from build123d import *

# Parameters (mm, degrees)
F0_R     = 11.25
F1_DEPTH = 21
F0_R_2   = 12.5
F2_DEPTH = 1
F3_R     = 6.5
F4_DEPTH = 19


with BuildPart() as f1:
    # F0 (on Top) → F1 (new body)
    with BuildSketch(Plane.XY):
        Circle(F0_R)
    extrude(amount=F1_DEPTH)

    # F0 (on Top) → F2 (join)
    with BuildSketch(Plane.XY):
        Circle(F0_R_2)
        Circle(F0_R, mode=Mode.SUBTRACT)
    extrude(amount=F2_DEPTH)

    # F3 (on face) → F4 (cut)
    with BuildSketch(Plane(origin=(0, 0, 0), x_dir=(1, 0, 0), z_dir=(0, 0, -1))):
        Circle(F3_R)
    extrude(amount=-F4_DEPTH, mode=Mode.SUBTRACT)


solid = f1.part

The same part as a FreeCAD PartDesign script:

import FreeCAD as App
import Part
import Sketcher
from FreeCAD import Vector

doc = App.newDocument("Part")
body = doc.addObject("PartDesign::Body", "Body")

# Sketch on XY plane
sketch1 = body.newObject("Sketcher::SketchObject", "Sketch")
sketch1.AttachmentSupport = (doc.getObject("XY_Plane"), [""])
sketch1.MapMode = "FlatFace"
sketch1.addGeometry(Part.Circle(Vector(0, 0, 0), Vector(0, 0, 1), 11), False)
sketch1.addConstraint(Sketcher.Constraint("Coincident", 0, 3, -1, 1))
sketch1.addConstraint(Sketcher.Constraint("Diameter", 0, 22.5))
pad1 = body.newObject("PartDesign::Pad", "Pad")
pad1.Profile = sketch1
pad1.Length = 21

# Sketch on XY plane
sketch2 = body.newObject("Sketcher::SketchObject", "Sketch001")
sketch2.AttachmentSupport = (doc.getObject("XY_Plane"), [""])
sketch2.MapMode = "FlatFace"
sketch2.addGeometry(Part.Circle(Vector(0, 0, 0), Vector(0, 0, 1), 12), False)
sketch2.addGeometry(Part.Circle(Vector(0, 0, 0), Vector(0, 0, 1), 11), False)
sketch2.addConstraint(Sketcher.Constraint("Coincident", 0, 3, -1, 1))
sketch2.addConstraint(Sketcher.Constraint("Coincident", 1, 3, -1, 1))
sketch2.addConstraint(Sketcher.Constraint("Diameter", 0, 25.0))
sketch2.addConstraint(Sketcher.Constraint("Diameter", 1, 22.5))
pad2 = body.newObject("PartDesign::Pad", "Pad001")
pad2.Profile = sketch2
pad2.Length = 1

# Sketch on XY plane
sketch3 = body.newObject("Sketcher::SketchObject", "Sketch002")
sketch3.AttachmentSupport = (doc.getObject("XY_Plane"), [""])
sketch3.MapMode = "FlatFace"
sketch3.addGeometry(Part.Circle(Vector(0, 0, 0), Vector(0, 0, 1), 6), False)
sketch3.addConstraint(Sketcher.Constraint("Coincident", 0, 3, -1, 1))
sketch3.addConstraint(Sketcher.Constraint("Diameter", 0, 13.0))
pocket1 = body.newObject("PartDesign::Pocket", "Pocket")
pocket1.Profile = sketch3
pocket1.Length = 19
pocket1.Reversed = True

doc.recompute()
